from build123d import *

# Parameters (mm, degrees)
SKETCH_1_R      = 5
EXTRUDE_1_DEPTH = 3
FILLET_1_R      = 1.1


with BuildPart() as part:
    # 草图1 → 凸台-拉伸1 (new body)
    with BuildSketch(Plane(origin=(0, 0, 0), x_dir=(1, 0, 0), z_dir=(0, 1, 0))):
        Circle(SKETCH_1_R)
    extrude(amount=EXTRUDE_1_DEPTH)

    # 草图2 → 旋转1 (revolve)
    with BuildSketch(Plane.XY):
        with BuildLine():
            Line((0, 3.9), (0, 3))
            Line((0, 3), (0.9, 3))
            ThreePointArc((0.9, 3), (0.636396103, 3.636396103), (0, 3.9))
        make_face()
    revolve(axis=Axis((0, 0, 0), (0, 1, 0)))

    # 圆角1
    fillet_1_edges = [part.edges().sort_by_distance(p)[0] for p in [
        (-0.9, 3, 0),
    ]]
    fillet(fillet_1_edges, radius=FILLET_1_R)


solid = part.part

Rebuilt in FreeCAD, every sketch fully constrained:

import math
import FreeCAD as App
import Part
import Sketcher


def edges_at(feature, points):
    """Names of the edges that pass closest to the given points."""
    edges = feature.Shape.Edges
    near = lambda p: min(range(len(edges)), key=lambda i: edges[i].distToShape(Part.Vertex(*p))[0])
    return sorted({f"Edge{near(p) + 1}" for p in points})

doc = App.newDocument("Part")
body = doc.addObject("PartDesign::Body", "Body")

# Sketch on XZ plane
sketch1 = doc.addObject("Sketcher::SketchObject", "Sketch")
body.addObject(sketch1)
sketch1.AttachmentSupport = (doc.XZ_Plane, [""])
sketch1.MapMode = "FlatFace"
sketch1.addGeometry(Part.Circle(App.Vector(0, 0, 0), App.Vector(0, 0, 1), 5), False)
sketch1.addConstraint(Sketcher.Constraint("Coincident", 0, 3, -1, 1))
sketch1.addConstraint(Sketcher.Constraint("Diameter", 0, 10.0))
pad1 = doc.addObject("PartDesign::Pad", "Pad")
body.addObject(pad1)
pad1.Profile = sketch1
pad1.Length = 3
pad1.Reversed = True

# Sketch on XY plane
sketch2 = doc.addObject("Sketcher::SketchObject", "Sketch001")
body.addObject(sketch2)
sketch2.AttachmentSupport = (doc.XY_Plane, [""])
sketch2.MapMode = "FlatFace"
sketch2.addGeometry(Part.LineSegment(App.Vector(0, 3.9, 0), App.Vector(0, 3, 0)), False)
sketch2.addGeometry(Part.LineSegment(App.Vector(0, 3, 0), App.Vector(0.9, 3, 0)), False)
sketch2.addGeometry(Part.ArcOfCircle(Part.Circle(App.Vector(0, 3, 0), App.Vector(0, 0, 1), 0.9), math.radians(0), math.radians(90)), False)
sketch2.addConstraint(Sketcher.Constraint("Coincident", 0, 2, 1, 1))
sketch2.addConstraint(Sketcher.Constraint("Coincident", 1, 2, 2, 1))
sketch2.addConstraint(Sketcher.Constraint("Coincident", 2, 2, 0, 1))
sketch2.addConstraint(Sketcher.Constraint("Vertical", 0))
sketch2.addConstraint(Sketcher.Constraint("Horizontal", 1))
sketch2.addConstraint(Sketcher.Constraint("Coincident", 0, 2, 2, 3))
sketch2.addConstraint(Sketcher.Constraint("PointOnObject", 2, 3, -2))
sketch2.addConstraint(Sketcher.Constraint("Radius", 2, 0.9))
sketch2.addConstraint(Sketcher.Constraint("DistanceY", -1, 1, 2, 3, 3.0))
revolution = doc.addObject("PartDesign::Revolution", "Revolution")
body.addObject(revolution)
revolution.Profile = sketch2
revolution.ReferenceAxis = (sketch2, ["V_Axis"])
revolution.Angle = 360
doc.recompute()

fillet = doc.addObject("PartDesign::Fillet", "Fillet")
body.addObject(fillet)
fillet.Base = (revolution, edges_at(revolution, [(-0.9, 3, 0)]))
fillet.Radius = 1.1

doc.recompute()
